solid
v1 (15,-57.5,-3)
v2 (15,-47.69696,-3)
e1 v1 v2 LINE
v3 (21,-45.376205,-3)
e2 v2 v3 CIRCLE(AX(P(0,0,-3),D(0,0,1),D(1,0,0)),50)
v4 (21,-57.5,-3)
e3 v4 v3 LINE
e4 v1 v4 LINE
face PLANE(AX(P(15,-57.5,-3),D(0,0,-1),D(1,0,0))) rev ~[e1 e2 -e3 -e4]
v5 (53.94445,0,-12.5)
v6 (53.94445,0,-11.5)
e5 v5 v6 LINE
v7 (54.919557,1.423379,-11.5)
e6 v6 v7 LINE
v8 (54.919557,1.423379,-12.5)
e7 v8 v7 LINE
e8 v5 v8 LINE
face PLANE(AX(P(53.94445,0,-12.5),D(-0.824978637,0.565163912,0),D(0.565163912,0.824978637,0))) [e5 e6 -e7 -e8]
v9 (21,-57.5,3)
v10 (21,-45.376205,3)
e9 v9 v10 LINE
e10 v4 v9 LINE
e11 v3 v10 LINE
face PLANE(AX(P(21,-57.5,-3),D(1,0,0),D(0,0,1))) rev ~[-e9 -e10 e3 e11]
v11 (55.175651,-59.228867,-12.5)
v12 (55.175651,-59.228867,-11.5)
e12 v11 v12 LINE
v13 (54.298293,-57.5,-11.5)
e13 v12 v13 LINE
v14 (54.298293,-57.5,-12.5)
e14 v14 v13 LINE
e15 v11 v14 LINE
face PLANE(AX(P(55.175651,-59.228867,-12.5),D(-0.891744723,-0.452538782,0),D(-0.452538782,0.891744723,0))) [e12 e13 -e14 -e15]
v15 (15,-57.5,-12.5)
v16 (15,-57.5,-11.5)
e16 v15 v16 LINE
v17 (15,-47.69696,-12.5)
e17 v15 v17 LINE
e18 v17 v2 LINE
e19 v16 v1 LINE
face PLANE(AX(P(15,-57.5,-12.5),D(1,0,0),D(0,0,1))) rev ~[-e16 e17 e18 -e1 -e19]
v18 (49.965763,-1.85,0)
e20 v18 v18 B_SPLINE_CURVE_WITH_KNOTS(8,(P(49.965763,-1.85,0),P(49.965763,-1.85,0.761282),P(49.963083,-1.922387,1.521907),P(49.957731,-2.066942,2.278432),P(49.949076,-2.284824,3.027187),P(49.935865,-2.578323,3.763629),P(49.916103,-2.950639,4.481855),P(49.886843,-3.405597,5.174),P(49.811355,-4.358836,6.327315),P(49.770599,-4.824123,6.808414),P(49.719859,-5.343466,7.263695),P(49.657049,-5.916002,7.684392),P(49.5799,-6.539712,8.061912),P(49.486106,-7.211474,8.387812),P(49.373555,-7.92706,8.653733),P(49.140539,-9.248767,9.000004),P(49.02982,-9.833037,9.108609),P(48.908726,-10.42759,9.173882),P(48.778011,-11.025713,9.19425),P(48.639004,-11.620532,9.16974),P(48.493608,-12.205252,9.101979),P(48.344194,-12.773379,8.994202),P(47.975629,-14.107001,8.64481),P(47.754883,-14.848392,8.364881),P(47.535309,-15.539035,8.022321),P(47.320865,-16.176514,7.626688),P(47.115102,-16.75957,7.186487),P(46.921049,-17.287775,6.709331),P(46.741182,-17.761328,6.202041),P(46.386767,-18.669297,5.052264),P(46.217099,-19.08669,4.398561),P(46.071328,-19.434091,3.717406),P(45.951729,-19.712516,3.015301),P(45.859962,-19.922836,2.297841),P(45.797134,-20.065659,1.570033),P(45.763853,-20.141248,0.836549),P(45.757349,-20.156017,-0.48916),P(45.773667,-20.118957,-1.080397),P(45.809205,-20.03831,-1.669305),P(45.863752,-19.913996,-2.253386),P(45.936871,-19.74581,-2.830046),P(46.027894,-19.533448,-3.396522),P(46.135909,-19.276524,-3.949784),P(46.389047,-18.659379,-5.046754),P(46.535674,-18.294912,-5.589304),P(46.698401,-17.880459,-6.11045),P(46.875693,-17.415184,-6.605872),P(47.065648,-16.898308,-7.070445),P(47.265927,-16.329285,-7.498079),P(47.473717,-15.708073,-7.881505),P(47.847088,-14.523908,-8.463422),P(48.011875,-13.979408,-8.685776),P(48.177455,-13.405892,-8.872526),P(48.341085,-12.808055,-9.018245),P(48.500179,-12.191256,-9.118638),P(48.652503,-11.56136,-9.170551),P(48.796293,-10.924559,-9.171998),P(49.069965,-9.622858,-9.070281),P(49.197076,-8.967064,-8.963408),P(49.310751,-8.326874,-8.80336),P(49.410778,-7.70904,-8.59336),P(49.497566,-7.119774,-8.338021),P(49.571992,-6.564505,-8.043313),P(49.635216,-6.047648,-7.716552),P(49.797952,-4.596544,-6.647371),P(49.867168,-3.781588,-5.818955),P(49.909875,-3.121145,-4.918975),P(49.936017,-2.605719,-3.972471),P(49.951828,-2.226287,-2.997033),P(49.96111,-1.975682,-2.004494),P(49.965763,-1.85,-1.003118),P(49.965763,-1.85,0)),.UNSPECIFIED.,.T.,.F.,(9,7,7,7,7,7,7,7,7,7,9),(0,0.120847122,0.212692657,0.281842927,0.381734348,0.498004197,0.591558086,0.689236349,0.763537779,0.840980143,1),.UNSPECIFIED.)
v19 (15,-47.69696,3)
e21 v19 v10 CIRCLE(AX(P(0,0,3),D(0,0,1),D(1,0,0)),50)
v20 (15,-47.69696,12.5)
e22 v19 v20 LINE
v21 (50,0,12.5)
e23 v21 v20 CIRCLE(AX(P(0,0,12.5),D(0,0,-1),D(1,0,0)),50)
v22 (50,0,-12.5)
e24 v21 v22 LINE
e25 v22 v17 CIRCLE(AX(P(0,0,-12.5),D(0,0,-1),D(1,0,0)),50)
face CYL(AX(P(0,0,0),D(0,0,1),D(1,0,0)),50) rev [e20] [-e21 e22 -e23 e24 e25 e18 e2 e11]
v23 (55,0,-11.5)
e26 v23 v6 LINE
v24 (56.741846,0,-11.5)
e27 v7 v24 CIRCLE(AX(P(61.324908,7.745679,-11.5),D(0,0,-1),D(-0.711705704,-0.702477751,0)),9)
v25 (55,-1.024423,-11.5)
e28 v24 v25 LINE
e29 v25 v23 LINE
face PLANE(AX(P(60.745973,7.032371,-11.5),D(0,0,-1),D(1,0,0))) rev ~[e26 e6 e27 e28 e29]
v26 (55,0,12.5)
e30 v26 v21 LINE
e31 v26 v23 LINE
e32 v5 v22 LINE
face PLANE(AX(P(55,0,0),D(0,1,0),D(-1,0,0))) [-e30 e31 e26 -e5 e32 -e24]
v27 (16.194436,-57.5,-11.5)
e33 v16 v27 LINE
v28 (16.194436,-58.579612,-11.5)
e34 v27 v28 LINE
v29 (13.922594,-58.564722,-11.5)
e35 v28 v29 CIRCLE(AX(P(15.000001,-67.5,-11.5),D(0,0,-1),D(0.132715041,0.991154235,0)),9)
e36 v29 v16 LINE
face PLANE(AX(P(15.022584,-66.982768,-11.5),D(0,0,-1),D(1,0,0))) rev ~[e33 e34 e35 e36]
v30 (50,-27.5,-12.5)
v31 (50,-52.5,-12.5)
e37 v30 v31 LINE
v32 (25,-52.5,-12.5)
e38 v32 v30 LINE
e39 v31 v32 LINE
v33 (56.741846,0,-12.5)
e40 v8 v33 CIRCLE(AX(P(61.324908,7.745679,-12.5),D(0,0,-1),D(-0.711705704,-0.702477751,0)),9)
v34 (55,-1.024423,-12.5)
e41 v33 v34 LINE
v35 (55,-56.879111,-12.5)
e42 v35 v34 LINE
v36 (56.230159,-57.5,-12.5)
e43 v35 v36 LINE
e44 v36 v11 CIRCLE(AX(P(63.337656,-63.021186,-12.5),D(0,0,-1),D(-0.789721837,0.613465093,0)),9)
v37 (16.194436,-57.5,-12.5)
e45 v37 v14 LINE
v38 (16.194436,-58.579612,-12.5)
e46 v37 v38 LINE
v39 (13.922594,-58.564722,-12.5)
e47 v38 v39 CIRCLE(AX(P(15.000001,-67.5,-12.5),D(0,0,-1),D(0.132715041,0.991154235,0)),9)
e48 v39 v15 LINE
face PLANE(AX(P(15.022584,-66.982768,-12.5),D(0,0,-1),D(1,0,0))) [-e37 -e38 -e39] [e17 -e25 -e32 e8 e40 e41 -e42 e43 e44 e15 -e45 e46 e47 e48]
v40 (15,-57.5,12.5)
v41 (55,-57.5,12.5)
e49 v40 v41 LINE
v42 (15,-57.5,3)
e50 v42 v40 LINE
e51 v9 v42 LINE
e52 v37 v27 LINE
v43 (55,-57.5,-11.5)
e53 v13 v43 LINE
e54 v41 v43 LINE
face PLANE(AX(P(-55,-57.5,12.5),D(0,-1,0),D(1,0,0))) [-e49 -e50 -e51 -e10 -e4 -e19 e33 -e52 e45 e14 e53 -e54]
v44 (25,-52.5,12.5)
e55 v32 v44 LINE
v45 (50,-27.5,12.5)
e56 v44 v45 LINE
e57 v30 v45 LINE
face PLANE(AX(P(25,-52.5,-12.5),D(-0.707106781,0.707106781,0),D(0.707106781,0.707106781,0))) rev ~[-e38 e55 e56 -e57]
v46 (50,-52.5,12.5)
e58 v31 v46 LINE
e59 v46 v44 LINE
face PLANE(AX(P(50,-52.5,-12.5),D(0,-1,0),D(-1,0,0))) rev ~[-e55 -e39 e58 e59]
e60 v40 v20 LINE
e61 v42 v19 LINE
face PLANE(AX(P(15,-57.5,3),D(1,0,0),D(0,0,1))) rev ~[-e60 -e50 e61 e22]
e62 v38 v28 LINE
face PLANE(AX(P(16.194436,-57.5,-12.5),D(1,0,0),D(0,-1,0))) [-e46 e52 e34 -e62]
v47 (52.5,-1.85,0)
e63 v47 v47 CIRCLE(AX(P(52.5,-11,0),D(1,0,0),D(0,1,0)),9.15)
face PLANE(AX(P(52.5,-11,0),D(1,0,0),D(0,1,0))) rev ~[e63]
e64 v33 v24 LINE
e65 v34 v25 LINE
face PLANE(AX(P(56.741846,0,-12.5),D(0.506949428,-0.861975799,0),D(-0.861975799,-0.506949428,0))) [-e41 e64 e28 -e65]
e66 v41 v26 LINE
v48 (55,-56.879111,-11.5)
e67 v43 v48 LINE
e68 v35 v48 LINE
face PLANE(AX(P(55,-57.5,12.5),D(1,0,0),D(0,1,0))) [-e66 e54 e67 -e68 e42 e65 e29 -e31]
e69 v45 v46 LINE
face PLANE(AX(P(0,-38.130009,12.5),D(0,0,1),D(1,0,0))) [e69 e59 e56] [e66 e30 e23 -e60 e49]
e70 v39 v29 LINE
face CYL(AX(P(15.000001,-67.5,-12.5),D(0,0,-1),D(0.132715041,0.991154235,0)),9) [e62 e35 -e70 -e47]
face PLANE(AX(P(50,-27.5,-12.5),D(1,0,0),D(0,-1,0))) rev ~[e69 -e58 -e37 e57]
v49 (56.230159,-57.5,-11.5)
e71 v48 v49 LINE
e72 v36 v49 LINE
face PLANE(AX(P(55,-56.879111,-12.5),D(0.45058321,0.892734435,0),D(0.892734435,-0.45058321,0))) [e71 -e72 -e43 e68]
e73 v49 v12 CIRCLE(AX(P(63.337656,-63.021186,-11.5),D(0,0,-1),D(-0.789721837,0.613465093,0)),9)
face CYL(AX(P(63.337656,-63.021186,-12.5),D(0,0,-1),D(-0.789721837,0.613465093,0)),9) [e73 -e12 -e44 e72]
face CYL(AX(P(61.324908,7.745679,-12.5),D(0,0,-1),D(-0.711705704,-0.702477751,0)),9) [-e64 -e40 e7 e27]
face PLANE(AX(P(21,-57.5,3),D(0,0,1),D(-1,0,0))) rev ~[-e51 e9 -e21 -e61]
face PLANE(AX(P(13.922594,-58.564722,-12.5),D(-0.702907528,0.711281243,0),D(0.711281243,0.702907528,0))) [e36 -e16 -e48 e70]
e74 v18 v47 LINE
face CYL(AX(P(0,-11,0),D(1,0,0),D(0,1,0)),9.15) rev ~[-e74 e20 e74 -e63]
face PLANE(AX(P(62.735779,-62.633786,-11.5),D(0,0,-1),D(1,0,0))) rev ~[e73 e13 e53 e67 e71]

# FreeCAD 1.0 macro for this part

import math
import FreeCAD as App
import Part
import Sketcher
from FreeCAD import Vector
Q = App.Units.Quantity

doc = App.newDocument("Part")
params = doc.addObject("Spreadsheet::Sheet", "Params")
for row, (alias, value) in enumerate([
    ("sketch1_radius", "50 mm"),
    ("sketch1_radius2", "55 mm"),
    ("pad1_length", "25 mm"),
    ("sketch2_radius", "55 mm"),
    ("sketch2_height", "57.5 mm"),
    ("pad2_length", "25 mm"),
    ("sketch3_diameter", "18.1 mm"),
    ("pocket1_length", "55 mm"),
    ("sketch4_diameter", "18.3 mm"),
    ("pocket2_length", "105 mm"),
    ("sketch5_width", "30 mm"),
    ("sketch5_width2", "6 mm"),
    ("sketch5_height", "9.5 mm"),
    ("sketch6_width", "25 mm"),
    ("pocket4_length", "25 mm"),
    ("sketch7_radius", "9 mm"),
    ("pad3_length", "1 mm"),
], start=1):
    params.set(f"A{row}", alias)
    params.set(f"B{row}", "=" + value)
    params.setAlias(f"B{row}", alias)

body = doc.addObject("PartDesign::Body", "Body")

sketch1 = doc.addObject("Sketcher::SketchObject", "Sketch")
body.addObject(sketch1)
sketch1.AttachmentSupport = (doc.XY_Plane, [""])
sketch1.MapMode = "FlatFace"
sketch1.addGeometry([
    Part.ArcOfCircle(Part.Circle(Vector(0, 0, 0), Vector(0, 0, 1), 50), math.radians(180), math.radians(360)),
    Part.LineSegment(Vector(-50, 0, 0), Vector(-55, 0, 0)),
    Part.ArcOfCircle(Part.Circle(Vector(0, 0, 0), Vector(0, 0, 1), 55), math.radians(180), math.radians(360)),
    Part.LineSegment(Vector(55, 0, 0), Vector(50, 0, 0)),
], False)
sketch1.addConstraint([
    Sketcher.Constraint("Coincident", 0, 1, 1, 1),
    Sketcher.Constraint("Coincident", 1, 2, 2, 1),
    Sketcher.Constraint("Coincident", 2, 2, 3, 1),
    Sketcher.Constraint("Coincident", 3, 2, 0, 2),
    Sketcher.Constraint("Horizontal", 1),
    Sketcher.Constraint("Horizontal", 3),
    Sketcher.Constraint("Coincident", 0, 3, -1, 1),
    Sketcher.Constraint("Coincident", 2, 3, -1, 1),
    Sketcher.Constraint("PointOnObject", 0, 1, -1),
    Sketcher.Constraint("PointOnObject", 2, 2, -1),
    Sketcher.Constraint("Radius", 0, Q("50 mm")),
    Sketcher.Constraint("Radius", 2, Q("55 mm")),
])
sketch1.setExpression("Constraints[10]", "Params.sketch1_radius")
sketch1.setExpression("Constraints[11]", "Params.sketch1_radius2")
pad1 = doc.addObject("PartDesign::Pad", "Pad")
body.addObject(pad1)
pad1.Profile = sketch1
pad1.setExpression("Length", "Params.pad1_length")
pad1.Midplane = True

sketch2 = doc.addObject("Sketcher::SketchObject", "Sketch001")
body.addObject(sketch2)
sketch2.AttachmentSupport = (doc.XY_Plane, [""])
sketch2.MapMode = "FlatFace"
sketch2.AttachmentOffset = App.Placement(Vector(0, 0, 12.5), App.Rotation())
sketch2.addGeometry([
    Part.ArcOfCircle(Part.Circle(Vector(0, 0, 0), Vector(0, 0, 1), 55), math.radians(180), math.radians(360)),
    Part.LineSegment(Vector(-55, 0, 0), Vector(-55, -58, 0)),
    Part.LineSegment(Vector(-55, -58, 0), Vector(55, -58, 0)),
    Part.LineSegment(Vector(55, -58, 0), Vector(55, 0, 0)),
], False)
sketch2.addConstraint([
    Sketcher.Constraint("Tangent", 0, 1, 1, 1),
    Sketcher.Constraint("Coincident", 1, 2, 2, 1),
    Sketcher.Constraint("Coincident", 2, 2, 3, 1),
    Sketcher.Constraint("Tangent", 3, 2, 0, 2),
    Sketcher.Constraint("Vertical", 1),
    Sketcher.Constraint("Horizontal", 2),
    Sketcher.Constraint("Vertical", 3),
    Sketcher.Constraint("Coincident", 0, 3, -1, 1),
    Sketcher.Constraint("Radius", 0, Q("55 mm")),
    Sketcher.Constraint("DistanceY", 1, 2, 1, 1, Q("57.5 mm")),
])
sketch2.setExpression("Constraints[8]", "Params.sketch2_radius")
sketch2.setExpression("Constraints[9]", "Params.sketch2_height")
pad2 = doc.addObject("PartDesign::Pad", "Pad001")
body.addObject(pad2)
pad2.Profile = sketch2
pad2.setExpression("Length", "Params.pad2_length")
pad2.Reversed = True

sketch3 = doc.addObject("Sketcher::SketchObject", "Sketch002")
body.addObject(sketch3)
sketch3.AttachmentSupport = (doc.XZ_Plane, [""])
sketch3.MapMode = "FlatFace"
sketch3.addGeometry(Part.Circle(Vector(0, 0, 0), Vector(0, 0, 1), 9), False)
sketch3.addConstraint([
    Sketcher.Constraint("Coincident", 0, 3, -1, 1),
    Sketcher.Constraint("Diameter", 0, Q("18.1 mm")),
])
sketch3.setExpression("Constraints[1]", "Params.sketch3_diameter")
pocket1 = doc.addObject("PartDesign::Pocket", "Pocket")
body.addObject(pocket1)
pocket1.Profile = sketch3
pocket1.setExpression("Length", "Params.pocket1_length")
pocket1.Reversed = True

sketch4 = doc.addObject("Sketcher::SketchObject", "Sketch003")
body.addObject(sketch4)
sketch4.AttachmentSupport = (doc.YZ_Plane, [""])
sketch4.MapMode = "FlatFace"
sketch4.addGeometry(Part.Circle(Vector(-11, 0, 0), Vector(0, 0, 1), 9), False)
sketch4.addConstraint([
    Sketcher.Constraint("PointOnObject", 0, 3, -1),
    Sketcher.Constraint("Diameter", 0, Q("18.3 mm")),
    Sketcher.Constraint("DistanceX", 0, 3, -1, 1, Q("11 mm")),
])
sketch4.setExpression("Constraints[1]", "Params.sketch4_diameter")
pocket2 = doc.addObject("PartDesign::Pocket", "Pocket001")
body.addObject(pocket2)
pocket2.Profile = sketch4
pocket2.setExpression("Length", "Params.pocket2_length")
pocket2.Midplane = True

sketch5 = doc.addObject("Sketcher::SketchObject", "Sketch004")
body.addObject(sketch5)
sketch5.AttachmentSupport = (doc.XZ_Plane, [""])
sketch5.MapMode = "FlatFace"
sketch5.AttachmentOffset = App.Placement(Vector(0, 0, 57.5), App.Rotation())
sketch5.addGeometry([
    Part.LineSegment(Vector(15, 12, 0), Vector(-15, 12, 0)),
    Part.LineSegment(Vector(-15, 12, 0), Vector(-15, 48, 0)),
    Part.LineSegment(Vector(-15, 48, 0), Vector(-90, 48, 0)),
    Part.LineSegment(Vector(-90, 48, 0), Vector(-91, -55, 0)),
    Part.LineSegment(Vector(-91, -55, 0), Vector(-15, -57, 0)),
    Part.LineSegment(Vector(-15, -57, 0), Vector(-15, -12, 0)),
    Part.LineSegment(Vector(-15, -12, 0), Vector(15, -12, 0)),
    Part.LineSegment(Vector(15, -12, 0), Vector(15, -3, 0)),
    Part.LineSegment(Vector(15, -3, 0), Vector(21, -3, 0)),
    Part.LineSegment(Vector(21, -3, 0), Vector(21, 3, 0)),
    Part.LineSegment(Vector(21, 3, 0), Vector(15, 3, 0)),
    Part.LineSegment(Vector(15, 3, 0), Vector(15, 12, 0)),
], False)
sketch5.addConstraint([
    Sketcher.Constraint("Coincident", 0, 2, 1, 1),
    Sketcher.Constraint("Coincident", 1, 2, 2, 1),
    Sketcher.Constraint("Coincident", 2, 2, 3, 1),
    Sketcher.Constraint("Coincident", 3, 2, 4, 1),
    Sketcher.Constraint("Coincident", 4, 2, 5, 1),
    Sketcher.Constraint("Coincident", 5, 2, 6, 1),
    Sketcher.Constraint("Coincident", 6, 2, 7, 1),
    Sketcher.Constraint("Coincident", 7, 2, 8, 1),
    Sketcher.Constraint("Coincident", 8, 2, 9, 1),
    Sketcher.Constraint("Coincident", 9, 2, 10, 1),
    Sketcher.Constraint("Coincident", 10, 2, 11, 1),
    Sketcher.Constraint("Coincident", 11, 2, 0, 1),
    Sketcher.Constraint("Horizontal", 0),
    Sketcher.Constraint("Vertical", 1),
    Sketcher.Constraint("Horizontal", 2),
    Sketcher.Constraint("Vertical", 5),
    Sketcher.Constraint("Horizontal", 6),
    Sketcher.Constraint("Vertical", 7),
    Sketcher.Constraint("Horizontal", 8),
    Sketcher.Constraint("Vertical", 9),
    Sketcher.Constraint("Horizontal", 10),
    Sketcher.Constraint("Vertical", 11),
    Sketcher.Constraint("Symmetric", 0, 2, 6, 2, -1, 1),
    Sketcher.Constraint("Symmetric", 7, 2, 10, 2, -1),
    Sketcher.Constraint("Vertical", 1, 2, 4, 2),
    Sketcher.Constraint("Equal", 10, 9),
    Sketcher.Constraint("DistanceX", 0, 2, 0, 1, Q("30 mm")),
    Sketcher.Constraint("DistanceX", 8, 1, 8, 2, Q("6 mm")),
    Sketcher.Constraint("DistanceY", 7, 1, 7, 2, Q("9.5 mm")),
    Sketcher.Constraint("DistanceY", 3, 2, -1, 1, Q("54.7974 mm")),
    Sketcher.Constraint("DistanceX", 2, 2, 2, 1, Q("74.987703 mm")),
    Sketcher.Constraint("DistanceY", 1, 1, 1, 2, Q("35.875133 mm")),
    Sketcher.Constraint("DistanceY", 5, 1, 5, 2, Q("44.357262 mm")),
    Sketcher.Constraint("Distance", 3, Q("103.180018 mm")),
])
sketch5.setExpression("Constraints[26]", "Params.sketch5_width")
sketch5.setExpression("Constraints[27]", "Params.sketch5_width2")
sketch5.setExpression("Constraints[28]", "Params.sketch5_height")
pocket3 = doc.addObject("PartDesign::Pocket", "Pocket002")
body.addObject(pocket3)
pocket3.Profile = sketch5
pocket3.Type = "ThroughAll"

sketch6 = doc.addObject("Sketcher::SketchObject", "Sketch005")
body.addObject(sketch6)
sketch6.AttachmentSupport = (doc.XY_Plane, [""])
sketch6.MapMode = "FlatFace"
sketch6.AttachmentOffset = App.Placement(Vector(0, 0, -12.5), App.Rotation())
sketch6.addGeometry([
    Part.LineSegment(Vector(50, -28, 0), Vector(50, -52, 0)),
    Part.LineSegment(Vector(50, -52, 0), Vector(25, -52, 0)),
    Part.LineSegment(Vector(25, -52, 0), Vector(50, -28, 0)),
], False)
sketch6.addConstraint([
    Sketcher.Constraint("Coincident", 0, 2, 1, 1),
    Sketcher.Constraint("Coincident", 1, 2, 2, 1),
    Sketcher.Constraint("Coincident", 2, 2, 0, 1),
    Sketcher.Constraint("Vertical", 0),
    Sketcher.Constraint("Horizontal", 1),
    Sketcher.Constraint("Equal", 1, 0),
    Sketcher.Constraint("DistanceX", 1, 2, 1, 1, Q("25 mm")),
    Sketcher.Constraint("DistanceX", -1, 1, 0, 2, Q("50 mm")),
    Sketcher.Constraint("DistanceY", 0, 2, -1, 1, Q("52.5 mm")),
])
sketch6.setExpression("Constraints[6]", "Params.sketch6_width")
pocket4 = doc.addObject("PartDesign::Pocket", "Pocket003")
body.addObject(pocket4)
pocket4.Profile = sketch6
pocket4.setExpression("Length", "Params.pocket4_length")
pocket4.Reversed = True

sketch7 = doc.addObject("Sketcher::SketchObject", "Sketch006")
body.addObject(sketch7)
sketch7.AttachmentSupport = (doc.XY_Plane, [""])
sketch7.MapMode = "FlatFace"
sketch7.AttachmentOffset = App.Placement(Vector(0, 0, -12.5), App.Rotation())
sketch7.addGeometry([
    Part.LineSegment(Vector(16.2, -57.5, 0), Vector(16.2, -58.6, 0)),
    Part.ArcOfCircle(Part.Circle(Vector(15, -67.5, 0), Vector(0, 0, 1), 9), math.radians(97), math.radians(442)),
    Part.LineSegment(Vector(13.9, -58.6, 0), Vector(15, -57.5, 0)),
    Part.LineSegment(Vector(15, -57.5, 0), Vector(16.2, -57.5, 0)),
    Part.LineSegment(Vector(55, -56.9, 0), Vector(56.2, -57.5, 0)),
    Part.ArcOfCircle(Part.Circle(Vector(63.3, -63, 0), Vector(0, 0, 1), 9), math.radians(155), math.radians(502)),
    Part.LineSegment(Vector(55.2, -59.2, 0), Vector(54.3, -57.5, 0)),
    Part.LineSegment(Vector(54.3, -57.5, 0), Vector(55, -57.5, 0)),
    Part.LineSegment(Vector(55, -57.5, 0), Vector(55, -56.9, 0)),
    Part.LineSegment(Vector(53.9, 0, 0), Vector(54.9, 1.4, 0)),
    Part.ArcOfCircle(Part.Circle(Vector(61.3, 7.7, 0), Vector(0, 0, 1), 9), math.radians(-121), math.radians(225)),
    Part.LineSegment(Vector(56.7, 0, 0), Vector(55, -1, 0)),
    Part.LineSegment(Vector(55, -1, 0), Vector(55, 0, 0)),
    Part.LineSegment(Vector(55, 0, 0), Vector(53.9, 0, 0)),
], False)
sketch7.addConstraint([
    Sketcher.Constraint("Coincident", 0, 2, 1, 2),
    Sketcher.Constraint("Coincident", 1, 1, 2, 1),
    Sketcher.Constraint("Coincident", 2, 2, 3, 1),
    Sketcher.Constraint("Coincident", 3, 2, 0, 1),
    Sketcher.Constraint("Coincident", 4, 2, 5, 2),
    Sketcher.Constraint("Coincident", 5, 1, 6, 1),
    Sketcher.Constraint("Coincident", 6, 2, 7, 1),
    Sketcher.Constraint("Coincident", 7, 2, 8, 1),
    Sketcher.Constraint("Coincident", 8, 2, 4, 1),
    Sketcher.Constraint("Coincident", 9, 2, 10, 2),
    Sketcher.Constraint("Coincident", 10, 1, 11, 1),
    Sketcher.Constraint("Coincident", 11, 2, 12, 1),
    Sketcher.Constraint("Coincident", 12, 2, 13, 1),
    Sketcher.Constraint("Coincident", 13, 2, 9, 1),
    Sketcher.Constraint("Vertical", 0),
    Sketcher.Constraint("Horizontal", 3),
    Sketcher.Constraint("Horizontal", 7),
    Sketcher.Constraint("Vertical", 8),
    Sketcher.Constraint("Vertical", 12),
    Sketcher.Constraint("Horizontal", 13),
    Sketcher.Constraint("Equal", 1, 5),
    Sketcher.Constraint("Equal", 5, 10),
    Sketcher.Constraint("PointOnObject", 10, 1, -1),
    Sketcher.Constraint("PointOnObject", 12, 2, -1),
    Sketcher.Constraint("Horizontal", 3, 2, 4, 2),
    Sketcher.Constraint("Horizontal", 4, 2, 6, 2),
    Sketcher.Constraint("Vertical", 1, 3, 2, 2),
    Sketcher.Constraint("Vertical", 8, 2, 11, 2),
    Sketcher.Constraint("Radius", 1, Q("9 mm")),
    Sketcher.Constraint("DistanceX", -1, 1, 1, 3, Q("15.000001 mm")),
    Sketcher.Constraint("DistanceX", -1, 1, 7, 2, Q("55 mm")),
    Sketcher.Constraint("DistanceY", 1, 3, 2, 2, Q("10 mm")),
    Sketcher.Constraint("DistanceY", 1, 3, -1, 1, Q("67.5 mm")),
    Sketcher.Constraint("DistanceX", 13, 2, 13, 1, Q("1.05555 mm")),
    Sketcher.Constraint("DistanceY", 0, 2, 0, 1, Q("1.079612 mm")),
    Sketcher.Constraint("DistanceY", 8, 1, 8, 2, Q("0.620889 mm")),
    Sketcher.Constraint("DistanceY", 1, 1, 10, 3, Q("66.310401 mm")),
    Sketcher.Constraint("DistanceY", 9, 2, 10, 3, Q("6.3223 mm")),
    Sketcher.Constraint("DistanceY", 11, 2, 10, 3, Q("8.770102 mm")),
    Sketcher.Constraint("Distance", 2, Q("1.51474 mm")),
    Sketcher.Constraint("Distance", 11, Q("2.02076 mm")),
    Sketcher.Constraint("DistanceX", 7, 1, 7, 2, Q("0.701707 mm")),
    Sketcher.Constraint("DistanceX", -1, 1, 4, 2, Q("56.230159 mm")),
    Sketcher.Constraint("DistanceX", -1, 1, 5, 1, Q("55.175651 mm")),
    Sketcher.Constraint("DistanceX", 0, 2, 5, 3, Q("47.14322 mm")),
])
sketch7.setExpression("Constraints[28]", "Params.sketch7_radius")
pad3 = doc.addObject("PartDesign::Pad", "Pad002")
body.addObject(pad3)
pad3.Profile = sketch7
pad3.setExpression("Length", "Params.pad3_length")

doc.recompute()
